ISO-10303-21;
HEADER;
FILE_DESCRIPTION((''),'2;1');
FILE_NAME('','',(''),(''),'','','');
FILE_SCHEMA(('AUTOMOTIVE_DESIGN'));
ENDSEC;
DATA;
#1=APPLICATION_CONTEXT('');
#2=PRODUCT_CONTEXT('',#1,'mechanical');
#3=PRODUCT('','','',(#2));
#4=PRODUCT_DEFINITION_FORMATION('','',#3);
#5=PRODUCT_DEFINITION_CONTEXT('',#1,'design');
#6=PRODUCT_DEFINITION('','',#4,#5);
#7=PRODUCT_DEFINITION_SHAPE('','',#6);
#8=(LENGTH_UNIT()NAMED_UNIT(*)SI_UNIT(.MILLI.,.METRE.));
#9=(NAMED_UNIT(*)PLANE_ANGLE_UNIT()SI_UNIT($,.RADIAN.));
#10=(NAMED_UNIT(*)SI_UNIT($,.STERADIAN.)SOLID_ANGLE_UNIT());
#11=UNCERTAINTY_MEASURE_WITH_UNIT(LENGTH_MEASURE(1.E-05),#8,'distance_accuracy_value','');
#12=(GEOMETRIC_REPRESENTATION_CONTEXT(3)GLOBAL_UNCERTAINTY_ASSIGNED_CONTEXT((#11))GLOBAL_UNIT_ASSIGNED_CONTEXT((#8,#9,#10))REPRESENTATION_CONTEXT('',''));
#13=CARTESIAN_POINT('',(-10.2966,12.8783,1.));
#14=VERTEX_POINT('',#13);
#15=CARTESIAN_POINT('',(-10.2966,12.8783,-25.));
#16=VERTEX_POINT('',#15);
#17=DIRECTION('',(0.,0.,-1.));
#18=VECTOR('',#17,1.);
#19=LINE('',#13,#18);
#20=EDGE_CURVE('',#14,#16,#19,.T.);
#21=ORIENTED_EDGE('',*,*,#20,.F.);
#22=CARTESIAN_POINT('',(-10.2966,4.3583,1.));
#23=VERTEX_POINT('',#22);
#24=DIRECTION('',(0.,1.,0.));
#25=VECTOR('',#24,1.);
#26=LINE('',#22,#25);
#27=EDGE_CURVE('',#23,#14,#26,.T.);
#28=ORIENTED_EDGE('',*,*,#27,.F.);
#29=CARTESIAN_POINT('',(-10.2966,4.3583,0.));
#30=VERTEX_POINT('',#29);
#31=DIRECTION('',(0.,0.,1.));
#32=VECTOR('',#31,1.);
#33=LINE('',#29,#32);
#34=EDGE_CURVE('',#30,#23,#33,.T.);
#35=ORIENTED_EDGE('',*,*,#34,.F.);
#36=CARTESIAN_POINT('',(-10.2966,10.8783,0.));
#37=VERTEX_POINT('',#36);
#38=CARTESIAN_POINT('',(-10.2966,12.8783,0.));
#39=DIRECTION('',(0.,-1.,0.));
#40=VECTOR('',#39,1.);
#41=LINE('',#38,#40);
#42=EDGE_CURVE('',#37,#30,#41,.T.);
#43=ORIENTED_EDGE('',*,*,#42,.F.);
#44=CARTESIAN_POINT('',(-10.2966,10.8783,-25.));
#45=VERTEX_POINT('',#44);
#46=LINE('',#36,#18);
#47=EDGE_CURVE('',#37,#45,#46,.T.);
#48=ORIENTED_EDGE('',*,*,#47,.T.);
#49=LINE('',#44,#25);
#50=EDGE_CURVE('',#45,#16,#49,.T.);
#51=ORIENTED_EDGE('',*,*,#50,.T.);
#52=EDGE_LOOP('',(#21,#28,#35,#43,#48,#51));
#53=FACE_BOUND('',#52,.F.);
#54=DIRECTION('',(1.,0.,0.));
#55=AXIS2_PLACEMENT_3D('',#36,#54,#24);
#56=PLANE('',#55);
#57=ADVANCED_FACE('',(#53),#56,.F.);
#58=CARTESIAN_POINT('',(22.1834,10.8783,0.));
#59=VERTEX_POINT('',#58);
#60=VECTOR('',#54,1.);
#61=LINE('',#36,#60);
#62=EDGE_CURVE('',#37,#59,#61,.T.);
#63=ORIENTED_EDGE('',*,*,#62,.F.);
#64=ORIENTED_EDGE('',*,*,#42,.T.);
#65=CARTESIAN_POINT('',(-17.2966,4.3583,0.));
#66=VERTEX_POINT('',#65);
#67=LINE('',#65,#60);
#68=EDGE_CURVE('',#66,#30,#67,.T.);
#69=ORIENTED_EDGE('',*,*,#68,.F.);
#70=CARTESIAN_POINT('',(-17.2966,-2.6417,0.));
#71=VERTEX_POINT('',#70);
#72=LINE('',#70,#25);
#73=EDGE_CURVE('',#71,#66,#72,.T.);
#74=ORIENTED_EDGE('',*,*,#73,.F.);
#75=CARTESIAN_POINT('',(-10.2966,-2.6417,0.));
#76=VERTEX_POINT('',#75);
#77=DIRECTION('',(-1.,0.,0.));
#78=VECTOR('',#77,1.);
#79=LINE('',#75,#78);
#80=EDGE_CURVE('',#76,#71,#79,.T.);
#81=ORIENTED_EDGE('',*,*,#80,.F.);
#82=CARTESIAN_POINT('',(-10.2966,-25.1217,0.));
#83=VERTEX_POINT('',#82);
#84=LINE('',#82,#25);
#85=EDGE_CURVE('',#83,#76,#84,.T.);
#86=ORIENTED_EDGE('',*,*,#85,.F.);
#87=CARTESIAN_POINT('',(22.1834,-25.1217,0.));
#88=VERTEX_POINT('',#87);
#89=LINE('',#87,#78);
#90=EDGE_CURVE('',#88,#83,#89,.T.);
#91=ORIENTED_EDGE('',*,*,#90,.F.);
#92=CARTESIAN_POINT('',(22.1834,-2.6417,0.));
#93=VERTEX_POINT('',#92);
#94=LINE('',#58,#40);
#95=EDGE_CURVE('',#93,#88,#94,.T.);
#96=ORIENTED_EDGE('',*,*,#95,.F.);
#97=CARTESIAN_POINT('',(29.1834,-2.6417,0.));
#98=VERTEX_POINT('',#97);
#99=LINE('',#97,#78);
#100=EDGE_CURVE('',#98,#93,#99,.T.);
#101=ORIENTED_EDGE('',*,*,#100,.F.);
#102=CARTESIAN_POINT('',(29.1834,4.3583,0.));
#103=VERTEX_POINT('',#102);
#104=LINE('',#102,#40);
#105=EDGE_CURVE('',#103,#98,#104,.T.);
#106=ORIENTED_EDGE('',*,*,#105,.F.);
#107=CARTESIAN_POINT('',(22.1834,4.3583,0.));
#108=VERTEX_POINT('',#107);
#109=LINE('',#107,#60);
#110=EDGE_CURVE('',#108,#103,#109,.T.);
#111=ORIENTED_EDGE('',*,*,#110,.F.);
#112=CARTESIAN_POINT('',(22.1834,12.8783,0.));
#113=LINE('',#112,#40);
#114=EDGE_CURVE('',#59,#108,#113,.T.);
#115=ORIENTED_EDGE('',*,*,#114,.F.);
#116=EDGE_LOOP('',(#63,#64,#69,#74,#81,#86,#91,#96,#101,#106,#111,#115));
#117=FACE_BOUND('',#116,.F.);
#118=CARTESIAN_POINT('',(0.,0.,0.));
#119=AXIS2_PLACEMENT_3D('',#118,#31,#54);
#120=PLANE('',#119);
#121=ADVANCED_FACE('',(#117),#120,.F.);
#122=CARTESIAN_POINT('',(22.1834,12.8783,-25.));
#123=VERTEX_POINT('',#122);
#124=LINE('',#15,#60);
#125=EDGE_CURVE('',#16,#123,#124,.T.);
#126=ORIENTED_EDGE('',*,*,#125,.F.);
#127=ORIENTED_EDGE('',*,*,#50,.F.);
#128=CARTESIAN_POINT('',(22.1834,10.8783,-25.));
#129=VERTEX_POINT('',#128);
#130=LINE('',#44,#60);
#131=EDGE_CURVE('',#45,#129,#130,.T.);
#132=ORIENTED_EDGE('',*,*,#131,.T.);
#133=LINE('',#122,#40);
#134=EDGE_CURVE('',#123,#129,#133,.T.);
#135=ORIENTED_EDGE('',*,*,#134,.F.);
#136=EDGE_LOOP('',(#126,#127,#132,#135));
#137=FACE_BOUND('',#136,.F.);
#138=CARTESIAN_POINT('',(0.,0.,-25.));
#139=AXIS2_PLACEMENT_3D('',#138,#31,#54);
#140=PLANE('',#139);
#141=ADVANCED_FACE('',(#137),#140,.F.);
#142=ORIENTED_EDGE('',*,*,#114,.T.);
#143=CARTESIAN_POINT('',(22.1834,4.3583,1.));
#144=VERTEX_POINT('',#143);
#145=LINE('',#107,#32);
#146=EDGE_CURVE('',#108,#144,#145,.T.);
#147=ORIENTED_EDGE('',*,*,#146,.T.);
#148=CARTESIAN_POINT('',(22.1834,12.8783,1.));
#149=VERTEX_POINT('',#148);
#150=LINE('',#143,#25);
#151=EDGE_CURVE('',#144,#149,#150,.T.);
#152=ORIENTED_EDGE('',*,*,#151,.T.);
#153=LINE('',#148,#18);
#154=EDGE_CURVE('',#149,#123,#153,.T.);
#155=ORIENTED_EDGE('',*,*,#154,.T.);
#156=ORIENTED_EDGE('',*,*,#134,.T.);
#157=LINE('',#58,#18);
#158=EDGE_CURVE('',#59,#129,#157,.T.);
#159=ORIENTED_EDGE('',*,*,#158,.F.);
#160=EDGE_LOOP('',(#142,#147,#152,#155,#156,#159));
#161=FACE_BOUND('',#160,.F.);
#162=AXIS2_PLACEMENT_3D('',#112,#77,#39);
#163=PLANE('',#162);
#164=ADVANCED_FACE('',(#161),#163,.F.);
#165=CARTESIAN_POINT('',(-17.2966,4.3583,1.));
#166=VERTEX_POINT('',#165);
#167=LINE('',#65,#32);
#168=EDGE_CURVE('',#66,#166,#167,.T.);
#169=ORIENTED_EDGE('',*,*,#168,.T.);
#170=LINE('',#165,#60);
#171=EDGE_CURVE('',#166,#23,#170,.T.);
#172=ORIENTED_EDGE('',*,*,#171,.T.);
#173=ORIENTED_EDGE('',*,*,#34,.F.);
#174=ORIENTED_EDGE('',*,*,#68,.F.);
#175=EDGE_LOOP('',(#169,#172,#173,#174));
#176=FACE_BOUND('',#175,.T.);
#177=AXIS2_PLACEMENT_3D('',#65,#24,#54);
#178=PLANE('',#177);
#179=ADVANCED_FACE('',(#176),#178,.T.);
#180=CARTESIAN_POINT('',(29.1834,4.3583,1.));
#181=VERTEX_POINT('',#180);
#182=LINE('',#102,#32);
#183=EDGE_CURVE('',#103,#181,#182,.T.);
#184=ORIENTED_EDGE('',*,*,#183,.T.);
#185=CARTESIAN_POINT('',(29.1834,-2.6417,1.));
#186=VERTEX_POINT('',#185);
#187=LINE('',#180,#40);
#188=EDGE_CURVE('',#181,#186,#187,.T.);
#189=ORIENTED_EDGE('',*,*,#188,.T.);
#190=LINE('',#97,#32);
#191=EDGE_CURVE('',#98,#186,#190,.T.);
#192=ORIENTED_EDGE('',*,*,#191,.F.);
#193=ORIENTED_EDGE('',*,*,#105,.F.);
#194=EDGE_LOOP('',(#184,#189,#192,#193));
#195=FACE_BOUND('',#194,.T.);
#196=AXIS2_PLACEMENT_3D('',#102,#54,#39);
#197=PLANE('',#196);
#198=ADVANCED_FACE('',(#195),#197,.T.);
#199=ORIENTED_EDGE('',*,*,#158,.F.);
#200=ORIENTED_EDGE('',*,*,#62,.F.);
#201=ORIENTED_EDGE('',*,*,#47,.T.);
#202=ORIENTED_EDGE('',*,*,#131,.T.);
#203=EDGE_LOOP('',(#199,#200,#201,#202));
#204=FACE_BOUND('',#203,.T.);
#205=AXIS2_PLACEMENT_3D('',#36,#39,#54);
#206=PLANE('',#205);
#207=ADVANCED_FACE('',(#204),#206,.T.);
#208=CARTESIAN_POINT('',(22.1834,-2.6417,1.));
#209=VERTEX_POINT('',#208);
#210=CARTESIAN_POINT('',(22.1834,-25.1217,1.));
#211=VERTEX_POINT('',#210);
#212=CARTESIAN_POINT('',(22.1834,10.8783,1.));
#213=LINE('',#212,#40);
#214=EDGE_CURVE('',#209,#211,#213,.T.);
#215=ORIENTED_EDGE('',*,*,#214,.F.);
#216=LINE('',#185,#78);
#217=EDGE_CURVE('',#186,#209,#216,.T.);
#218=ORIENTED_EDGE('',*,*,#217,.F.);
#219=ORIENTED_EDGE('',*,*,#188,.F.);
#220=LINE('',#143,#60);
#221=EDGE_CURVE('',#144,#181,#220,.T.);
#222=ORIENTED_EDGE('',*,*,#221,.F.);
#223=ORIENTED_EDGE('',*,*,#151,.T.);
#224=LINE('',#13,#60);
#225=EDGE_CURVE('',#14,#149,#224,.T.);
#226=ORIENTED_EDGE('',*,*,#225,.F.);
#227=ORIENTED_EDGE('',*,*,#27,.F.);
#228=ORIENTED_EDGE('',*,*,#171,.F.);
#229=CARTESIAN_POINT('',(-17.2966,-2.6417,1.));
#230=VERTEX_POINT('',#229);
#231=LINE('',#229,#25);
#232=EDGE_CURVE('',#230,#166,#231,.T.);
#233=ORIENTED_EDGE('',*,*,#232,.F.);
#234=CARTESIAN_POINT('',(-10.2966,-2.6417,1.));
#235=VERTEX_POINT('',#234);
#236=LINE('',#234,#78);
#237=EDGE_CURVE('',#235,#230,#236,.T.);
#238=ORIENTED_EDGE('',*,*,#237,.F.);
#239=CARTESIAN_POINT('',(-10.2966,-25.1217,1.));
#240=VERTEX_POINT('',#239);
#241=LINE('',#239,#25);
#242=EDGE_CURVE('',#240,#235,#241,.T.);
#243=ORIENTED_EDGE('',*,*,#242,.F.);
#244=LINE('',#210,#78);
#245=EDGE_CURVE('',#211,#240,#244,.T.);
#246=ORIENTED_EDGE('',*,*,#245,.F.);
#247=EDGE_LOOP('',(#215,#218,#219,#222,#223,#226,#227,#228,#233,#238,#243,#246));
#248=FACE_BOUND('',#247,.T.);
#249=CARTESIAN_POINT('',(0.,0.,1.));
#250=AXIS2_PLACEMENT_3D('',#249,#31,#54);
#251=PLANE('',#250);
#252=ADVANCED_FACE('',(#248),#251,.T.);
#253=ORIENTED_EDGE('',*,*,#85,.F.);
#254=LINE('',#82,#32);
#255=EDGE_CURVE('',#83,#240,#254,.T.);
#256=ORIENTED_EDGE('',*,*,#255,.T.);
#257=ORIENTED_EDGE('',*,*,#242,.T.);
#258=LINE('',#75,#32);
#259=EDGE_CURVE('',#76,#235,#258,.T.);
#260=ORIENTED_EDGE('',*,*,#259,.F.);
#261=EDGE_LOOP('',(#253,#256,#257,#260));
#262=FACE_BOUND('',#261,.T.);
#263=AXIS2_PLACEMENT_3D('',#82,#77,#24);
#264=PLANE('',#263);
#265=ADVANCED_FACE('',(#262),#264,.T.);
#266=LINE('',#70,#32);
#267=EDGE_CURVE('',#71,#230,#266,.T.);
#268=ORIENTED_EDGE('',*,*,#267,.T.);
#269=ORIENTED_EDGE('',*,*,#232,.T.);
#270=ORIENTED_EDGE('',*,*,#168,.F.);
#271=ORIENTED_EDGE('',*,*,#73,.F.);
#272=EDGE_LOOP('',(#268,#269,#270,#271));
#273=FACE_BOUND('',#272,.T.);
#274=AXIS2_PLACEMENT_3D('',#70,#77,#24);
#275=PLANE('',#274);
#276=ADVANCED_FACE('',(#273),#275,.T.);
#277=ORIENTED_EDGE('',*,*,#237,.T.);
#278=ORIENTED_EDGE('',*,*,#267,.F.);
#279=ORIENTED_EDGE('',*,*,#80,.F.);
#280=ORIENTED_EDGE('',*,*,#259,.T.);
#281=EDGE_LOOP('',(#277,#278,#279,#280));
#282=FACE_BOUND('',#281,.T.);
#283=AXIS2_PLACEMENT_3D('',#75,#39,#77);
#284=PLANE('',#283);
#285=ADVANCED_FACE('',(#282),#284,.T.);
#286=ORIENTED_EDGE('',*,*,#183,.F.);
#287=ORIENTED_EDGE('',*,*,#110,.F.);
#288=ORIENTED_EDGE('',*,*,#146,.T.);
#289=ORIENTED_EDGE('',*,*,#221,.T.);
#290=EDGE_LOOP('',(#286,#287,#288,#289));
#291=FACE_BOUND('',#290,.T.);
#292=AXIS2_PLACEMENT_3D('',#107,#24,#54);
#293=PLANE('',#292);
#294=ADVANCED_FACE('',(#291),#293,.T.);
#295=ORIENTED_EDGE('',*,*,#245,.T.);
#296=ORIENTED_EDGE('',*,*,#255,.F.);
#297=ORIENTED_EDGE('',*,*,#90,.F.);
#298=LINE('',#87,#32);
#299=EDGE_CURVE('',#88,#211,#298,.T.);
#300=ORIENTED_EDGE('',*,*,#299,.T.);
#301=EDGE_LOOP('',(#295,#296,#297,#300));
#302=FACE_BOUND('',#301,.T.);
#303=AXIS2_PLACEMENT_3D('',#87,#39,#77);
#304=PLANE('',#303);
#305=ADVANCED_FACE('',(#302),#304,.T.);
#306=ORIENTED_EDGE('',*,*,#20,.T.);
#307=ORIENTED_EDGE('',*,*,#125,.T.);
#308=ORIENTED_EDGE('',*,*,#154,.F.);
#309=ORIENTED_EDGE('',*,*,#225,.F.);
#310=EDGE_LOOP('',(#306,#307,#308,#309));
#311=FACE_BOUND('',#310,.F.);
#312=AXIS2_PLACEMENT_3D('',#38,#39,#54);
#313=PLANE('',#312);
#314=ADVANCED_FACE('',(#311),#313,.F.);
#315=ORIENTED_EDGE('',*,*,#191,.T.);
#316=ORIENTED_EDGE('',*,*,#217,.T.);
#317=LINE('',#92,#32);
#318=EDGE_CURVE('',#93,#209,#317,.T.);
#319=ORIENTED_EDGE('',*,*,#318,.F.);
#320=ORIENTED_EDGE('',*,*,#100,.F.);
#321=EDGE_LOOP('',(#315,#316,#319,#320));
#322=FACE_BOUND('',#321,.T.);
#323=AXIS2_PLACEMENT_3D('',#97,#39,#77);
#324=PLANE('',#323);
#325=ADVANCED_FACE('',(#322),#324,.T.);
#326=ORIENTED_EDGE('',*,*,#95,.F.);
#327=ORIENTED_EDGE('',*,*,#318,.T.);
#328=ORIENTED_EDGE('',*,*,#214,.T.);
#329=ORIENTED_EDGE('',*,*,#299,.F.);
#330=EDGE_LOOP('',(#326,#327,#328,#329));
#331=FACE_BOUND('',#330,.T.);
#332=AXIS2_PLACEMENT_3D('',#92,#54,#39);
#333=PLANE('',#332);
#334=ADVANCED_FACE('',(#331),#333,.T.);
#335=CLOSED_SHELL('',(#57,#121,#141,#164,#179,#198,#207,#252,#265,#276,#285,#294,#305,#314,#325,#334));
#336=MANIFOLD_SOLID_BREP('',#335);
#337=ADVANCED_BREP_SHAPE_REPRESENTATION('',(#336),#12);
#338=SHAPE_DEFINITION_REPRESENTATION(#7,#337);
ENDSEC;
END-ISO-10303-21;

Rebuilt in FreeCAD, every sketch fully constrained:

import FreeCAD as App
import Part
import Sketcher

V = App.Vector


def add_polygon(sketch, points):
    """Adds a closed chain of lines whose ends are joined by coincident constraints."""
    first, n = sketch.GeometryCount, len(points)
    for a, b in zip(points, points[1:] + points[:1]):
        sketch.addGeometry(Part.LineSegment(App.Vector(*a, 0), App.Vector(*b, 0)), False)
    for i in range(n):
        sketch.addConstraint(Sketcher.Constraint("Coincident", first + i, 2, first + (i + 1) % n, 1))

doc = App.newDocument("Part")
body = doc.addObject("PartDesign::Body", "Body")

# Sketch on XY plane
sketch1 = body.newObject("Sketcher::SketchObject", "Sketch")
sketch1.AttachmentSupport = (doc.getObject("XY_Plane"), [""])
sketch1.MapMode = "FlatFace"
add_polygon(sketch1, [(-10, 13), (-10, 4), (-17, 4), (-17, -3), (-10, -3), (-10, -25), (22, -25), (22, -3), (29, -3), (29, 4), (22, 4), (22, 13)])  # lines 0-11
sketch1.addConstraint(Sketcher.Constraint("Vertical", 0))
sketch1.addConstraint(Sketcher.Constraint("Horizontal", 1))
sketch1.addConstraint(Sketcher.Constraint("Vertical", 2))
sketch1.addConstraint(Sketcher.Constraint("Horizontal", 3))
sketch1.addConstraint(Sketcher.Constraint("Vertical", 4))
sketch1.addConstraint(Sketcher.Constraint("Horizontal", 5))
sketch1.addConstraint(Sketcher.Constraint("Vertical", 6))
sketch1.addConstraint(Sketcher.Constraint("Horizontal", 7))
sketch1.addConstraint(Sketcher.Constraint("Vertical", 8))
sketch1.addConstraint(Sketcher.Constraint("Horizontal", 9))
sketch1.addConstraint(Sketcher.Constraint("Vertical", 10))
sketch1.addConstraint(Sketcher.Constraint("Horizontal", 11))
sketch1.addConstraint(Sketcher.Constraint("Horizontal", 3, 2, 6, 2))
sketch1.addConstraint(Sketcher.Constraint("Horizontal", 1, 2, 8, 2))
sketch1.addConstraint(Sketcher.Constraint("Vertical", 0, 2, 3, 2))
sketch1.addConstraint(Sketcher.Constraint("Vertical", 6, 2, 9, 2))
sketch1.addConstraint(Sketcher.Constraint("Equal", 3, 7))
sketch1.addConstraint(Sketcher.Constraint("Equal", 9, 2))
sketch1.addConstraint(Sketcher.Constraint("DistanceX", 1, 2, 1, 1, 7.0))
sketch1.addConstraint(Sketcher.Constraint("DistanceX", 5, 1, 5, 2, 32.48))
sketch1.addConstraint(Sketcher.Constraint("DistanceY", 4, 2, 4, 1, 22.48))
sketch1.addConstraint(Sketcher.Constraint("DistanceY", 0, 2, 0, 1, 8.52))
sketch1.addConstraint(Sketcher.Constraint("DistanceX", 0, 2, -1, 1, 10.2966))
sketch1.addConstraint(Sketcher.Constraint("DistanceY", -1, 1, 0, 2, 4.3583))
pad1 = body.newObject("PartDesign::Pad", "Pad")
pad1.Profile = sketch1
pad1.Length = 1

# Sketch on XY plane
sketch2 = body.newObject("Sketcher::SketchObject", "Sketch001")
sketch2.AttachmentSupport = (doc.getObject("XY_Plane"), [""])
sketch2.MapMode = "FlatFace"
add_polygon(sketch2, [(-10.3, 12.9), (-10.3, 10.9), (22.2, 10.9), (22.2, 12.9)])  # lines 0-3
sketch2.addConstraint(Sketcher.Constraint("Vertical", 0))
sketch2.addConstraint(Sketcher.Constraint("Horizontal", 1))
sketch2.addConstraint(Sketcher.Constraint("Vertical", 2))
sketch2.addConstraint(Sketcher.Constraint("Horizontal", 3))
sketch2.addConstraint(Sketcher.Constraint("DistanceY", 0, 2, 0, 1, 2.0))
sketch2.addConstraint(Sketcher.Constraint("DistanceX", 1, 1, 1, 2, 32.48))
sketch2.addConstraint(Sketcher.Constraint("DistanceX", 0, 2, -1, 1, 10.2966))
sketch2.addConstraint(Sketcher.Constraint("DistanceY", -1, 1, 0, 2, 10.8783))
pad2 = body.newObject("PartDesign::Pad", "Pad001")
pad2.Profile = sketch2
pad2.Length = 25
pad2.Reversed = True

doc.recompute()
